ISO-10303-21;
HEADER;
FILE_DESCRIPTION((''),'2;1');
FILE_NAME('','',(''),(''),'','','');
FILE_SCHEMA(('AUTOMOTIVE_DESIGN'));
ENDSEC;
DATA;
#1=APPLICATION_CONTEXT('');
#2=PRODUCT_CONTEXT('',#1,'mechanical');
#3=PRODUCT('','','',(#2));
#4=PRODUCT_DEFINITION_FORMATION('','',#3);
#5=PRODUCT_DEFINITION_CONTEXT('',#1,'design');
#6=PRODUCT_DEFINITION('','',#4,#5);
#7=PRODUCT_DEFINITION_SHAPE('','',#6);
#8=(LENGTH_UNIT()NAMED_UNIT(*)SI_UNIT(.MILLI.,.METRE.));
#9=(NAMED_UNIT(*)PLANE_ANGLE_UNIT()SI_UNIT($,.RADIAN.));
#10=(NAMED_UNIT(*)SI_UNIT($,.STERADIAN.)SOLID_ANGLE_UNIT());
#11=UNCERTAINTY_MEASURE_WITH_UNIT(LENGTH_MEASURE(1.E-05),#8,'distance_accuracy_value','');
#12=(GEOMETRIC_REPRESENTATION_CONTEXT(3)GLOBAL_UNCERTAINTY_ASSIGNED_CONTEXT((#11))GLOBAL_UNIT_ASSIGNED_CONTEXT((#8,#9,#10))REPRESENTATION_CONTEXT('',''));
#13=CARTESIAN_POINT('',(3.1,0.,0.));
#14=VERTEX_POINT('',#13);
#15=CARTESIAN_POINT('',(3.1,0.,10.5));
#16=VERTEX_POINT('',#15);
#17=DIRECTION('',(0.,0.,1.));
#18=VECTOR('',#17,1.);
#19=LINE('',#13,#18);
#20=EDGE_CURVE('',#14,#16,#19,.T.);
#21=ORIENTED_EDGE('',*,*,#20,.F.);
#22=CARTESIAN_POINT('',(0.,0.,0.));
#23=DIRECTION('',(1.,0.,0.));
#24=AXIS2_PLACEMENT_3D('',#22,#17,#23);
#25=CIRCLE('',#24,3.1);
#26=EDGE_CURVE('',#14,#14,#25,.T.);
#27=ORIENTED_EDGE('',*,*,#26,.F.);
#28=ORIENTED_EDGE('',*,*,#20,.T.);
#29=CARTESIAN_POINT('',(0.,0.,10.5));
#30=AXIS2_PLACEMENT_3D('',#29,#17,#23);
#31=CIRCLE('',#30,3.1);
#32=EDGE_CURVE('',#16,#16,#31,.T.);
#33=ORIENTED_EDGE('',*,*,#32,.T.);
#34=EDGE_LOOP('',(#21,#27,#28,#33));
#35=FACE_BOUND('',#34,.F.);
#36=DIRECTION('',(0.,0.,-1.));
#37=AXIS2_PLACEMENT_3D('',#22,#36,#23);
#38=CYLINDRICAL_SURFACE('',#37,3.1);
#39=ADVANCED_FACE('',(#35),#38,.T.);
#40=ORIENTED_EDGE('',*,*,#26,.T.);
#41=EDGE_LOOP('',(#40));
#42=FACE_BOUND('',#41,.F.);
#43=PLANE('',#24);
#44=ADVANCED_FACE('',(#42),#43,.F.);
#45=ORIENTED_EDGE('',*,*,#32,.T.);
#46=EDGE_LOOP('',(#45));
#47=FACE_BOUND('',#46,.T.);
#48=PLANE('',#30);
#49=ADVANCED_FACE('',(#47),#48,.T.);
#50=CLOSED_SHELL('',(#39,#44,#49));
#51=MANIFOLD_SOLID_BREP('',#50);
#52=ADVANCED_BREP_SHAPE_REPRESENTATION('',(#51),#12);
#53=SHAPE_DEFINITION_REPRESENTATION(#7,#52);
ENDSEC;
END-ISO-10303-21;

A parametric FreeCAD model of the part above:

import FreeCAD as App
import Part
import Sketcher

V = App.Vector
Q = App.Units.Quantity

doc = App.newDocument("Part")
body = doc.addObject("PartDesign::Body", "Body")

# Sketch on XY plane
sketch1 = body.newObject("Sketcher::SketchObject", "Sketch")
sketch1.AttachmentSupport = (doc.getObject("XY_Plane"), [""])
sketch1.MapMode = "FlatFace"
sketch1.addGeometry(Part.Circle(V(0, 0, 0), V(0, 0, 1), 3.1), False)
sketch1.addConstraint([
    Sketcher.Constraint("Coincident", 0, 3, -1, 1),
    Sketcher.Constraint("Diameter", 0, Q("6.2 mm")),
])
pad1 = body.newObject("PartDesign::Pad", "Pad")
pad1.Profile = sketch1
pad1.Length = 10.5

doc.recompute()
